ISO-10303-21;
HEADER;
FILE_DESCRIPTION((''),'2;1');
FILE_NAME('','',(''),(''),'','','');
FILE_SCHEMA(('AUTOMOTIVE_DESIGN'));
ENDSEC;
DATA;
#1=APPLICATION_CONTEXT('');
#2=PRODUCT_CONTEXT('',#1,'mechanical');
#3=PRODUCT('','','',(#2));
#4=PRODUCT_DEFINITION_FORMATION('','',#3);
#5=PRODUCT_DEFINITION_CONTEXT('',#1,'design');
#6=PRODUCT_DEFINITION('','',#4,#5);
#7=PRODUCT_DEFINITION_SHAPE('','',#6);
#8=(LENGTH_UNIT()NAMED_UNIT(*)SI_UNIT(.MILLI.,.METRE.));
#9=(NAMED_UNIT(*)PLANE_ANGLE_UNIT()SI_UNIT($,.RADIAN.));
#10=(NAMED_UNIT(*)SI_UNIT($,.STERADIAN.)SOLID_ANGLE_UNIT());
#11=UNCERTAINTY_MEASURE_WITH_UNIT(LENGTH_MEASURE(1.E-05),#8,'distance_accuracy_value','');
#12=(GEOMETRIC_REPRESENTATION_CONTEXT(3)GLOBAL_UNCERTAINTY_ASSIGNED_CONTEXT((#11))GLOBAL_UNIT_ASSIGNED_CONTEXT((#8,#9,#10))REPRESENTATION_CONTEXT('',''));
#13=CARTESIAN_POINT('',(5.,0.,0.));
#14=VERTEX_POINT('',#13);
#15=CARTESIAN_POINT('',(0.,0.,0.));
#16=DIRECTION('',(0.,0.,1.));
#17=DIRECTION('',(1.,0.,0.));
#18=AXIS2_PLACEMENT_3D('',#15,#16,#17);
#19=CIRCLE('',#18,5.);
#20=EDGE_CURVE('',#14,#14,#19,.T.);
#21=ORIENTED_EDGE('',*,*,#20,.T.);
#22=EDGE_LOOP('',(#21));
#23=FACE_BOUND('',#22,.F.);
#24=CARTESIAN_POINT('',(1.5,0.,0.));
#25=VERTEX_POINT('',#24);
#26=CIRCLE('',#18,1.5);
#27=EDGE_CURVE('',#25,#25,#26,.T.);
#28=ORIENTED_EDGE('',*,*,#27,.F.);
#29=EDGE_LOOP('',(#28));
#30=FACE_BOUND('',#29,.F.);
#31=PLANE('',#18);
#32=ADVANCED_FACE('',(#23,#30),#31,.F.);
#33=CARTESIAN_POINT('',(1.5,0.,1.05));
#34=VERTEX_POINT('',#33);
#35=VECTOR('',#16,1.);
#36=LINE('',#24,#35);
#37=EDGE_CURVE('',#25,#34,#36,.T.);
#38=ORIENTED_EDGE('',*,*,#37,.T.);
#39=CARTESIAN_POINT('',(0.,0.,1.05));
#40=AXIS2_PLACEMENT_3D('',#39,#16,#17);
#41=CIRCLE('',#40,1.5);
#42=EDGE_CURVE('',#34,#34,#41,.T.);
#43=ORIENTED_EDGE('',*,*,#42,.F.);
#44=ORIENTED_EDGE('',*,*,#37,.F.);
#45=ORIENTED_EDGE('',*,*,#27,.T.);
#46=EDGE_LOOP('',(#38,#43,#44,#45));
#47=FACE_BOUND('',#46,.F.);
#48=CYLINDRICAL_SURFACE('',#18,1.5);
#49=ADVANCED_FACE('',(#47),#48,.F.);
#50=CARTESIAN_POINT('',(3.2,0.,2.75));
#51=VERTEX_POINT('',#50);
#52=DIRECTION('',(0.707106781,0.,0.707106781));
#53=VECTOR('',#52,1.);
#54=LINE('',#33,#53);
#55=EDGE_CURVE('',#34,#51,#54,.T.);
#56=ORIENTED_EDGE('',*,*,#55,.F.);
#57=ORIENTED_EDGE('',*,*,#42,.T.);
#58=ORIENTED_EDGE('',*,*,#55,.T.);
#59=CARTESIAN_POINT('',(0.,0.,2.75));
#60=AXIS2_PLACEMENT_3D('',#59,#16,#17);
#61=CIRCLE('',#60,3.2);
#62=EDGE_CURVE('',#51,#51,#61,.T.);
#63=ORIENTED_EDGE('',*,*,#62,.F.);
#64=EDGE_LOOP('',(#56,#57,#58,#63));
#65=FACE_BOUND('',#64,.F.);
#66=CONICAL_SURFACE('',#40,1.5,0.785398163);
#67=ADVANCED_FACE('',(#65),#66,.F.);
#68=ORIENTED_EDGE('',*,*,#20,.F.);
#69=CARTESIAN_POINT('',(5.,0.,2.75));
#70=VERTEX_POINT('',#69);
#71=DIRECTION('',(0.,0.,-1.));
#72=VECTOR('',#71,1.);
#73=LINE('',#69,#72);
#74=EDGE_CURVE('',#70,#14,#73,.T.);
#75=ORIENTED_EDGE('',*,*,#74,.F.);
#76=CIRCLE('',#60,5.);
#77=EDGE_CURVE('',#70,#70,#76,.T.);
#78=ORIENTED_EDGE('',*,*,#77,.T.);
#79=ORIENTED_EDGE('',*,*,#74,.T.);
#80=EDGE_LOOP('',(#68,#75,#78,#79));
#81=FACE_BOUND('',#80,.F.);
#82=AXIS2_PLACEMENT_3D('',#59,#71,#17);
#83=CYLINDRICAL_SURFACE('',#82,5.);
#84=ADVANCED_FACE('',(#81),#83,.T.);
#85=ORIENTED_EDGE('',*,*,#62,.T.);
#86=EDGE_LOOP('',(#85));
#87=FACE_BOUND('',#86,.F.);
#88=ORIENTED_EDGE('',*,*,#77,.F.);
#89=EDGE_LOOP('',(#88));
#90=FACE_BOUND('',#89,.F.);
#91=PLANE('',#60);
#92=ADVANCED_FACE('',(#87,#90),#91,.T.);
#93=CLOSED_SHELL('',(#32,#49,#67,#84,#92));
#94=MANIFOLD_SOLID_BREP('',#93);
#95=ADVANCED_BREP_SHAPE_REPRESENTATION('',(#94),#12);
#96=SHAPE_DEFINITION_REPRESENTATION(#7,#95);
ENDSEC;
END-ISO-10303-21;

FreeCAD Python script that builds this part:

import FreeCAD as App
import Part
import Sketcher
from FreeCAD import Vector
Q = App.Units.Quantity

doc = App.newDocument("Part")
params = doc.addObject("Spreadsheet::Sheet", "Params")
for row, (alias, value) in enumerate([
    ("sketch1_width", "1.8 mm"),
    ("sketch1_width2", "3.5 mm"),
    ("sketch1_height", "1.05 mm"),
    ("revolution_angle", "360 deg"),
], start=1):
    params.set(f"A{row}", alias)
    params.set(f"B{row}", "=" + value)
    params.setAlias(f"B{row}", alias)

body = doc.addObject("PartDesign::Body", "Body")

# Sketch on XZ plane
sketch1 = body.newObject("Sketcher::SketchObject", "Sketch")
sketch1.AttachmentSupport = (doc.getObject("XZ_Plane"), [""])
sketch1.MapMode = "FlatFace"
sketch1.addGeometry(Part.LineSegment(Vector(5, 2.8, 0), Vector(3.2, 2.8, 0)), False)
sketch1.addGeometry(Part.LineSegment(Vector(3.2, 2.8, 0), Vector(1.5, 1.1, 0)), False)
sketch1.addGeometry(Part.LineSegment(Vector(1.5, 1.1, 0), Vector(1.5, 0, 0)), False)
sketch1.addGeometry(Part.LineSegment(Vector(1.5, 0, 0), Vector(5, 0, 0)), False)
sketch1.addGeometry(Part.LineSegment(Vector(5, 0, 0), Vector(5, 2.8, 0)), False)
sketch1.addConstraint(Sketcher.Constraint("Coincident", 0, 2, 1, 1))
sketch1.addConstraint(Sketcher.Constraint("Coincident", 1, 2, 2, 1))
sketch1.addConstraint(Sketcher.Constraint("Coincident", 2, 2, 3, 1))
sketch1.addConstraint(Sketcher.Constraint("Coincident", 3, 2, 4, 1))
sketch1.addConstraint(Sketcher.Constraint("Coincident", 4, 2, 0, 1))
sketch1.addConstraint(Sketcher.Constraint("Horizontal", 0))
sketch1.addConstraint(Sketcher.Constraint("Vertical", 2))
sketch1.addConstraint(Sketcher.Constraint("Horizontal", 3))
sketch1.addConstraint(Sketcher.Constraint("Vertical", 4))
sketch1.addConstraint(Sketcher.Constraint("PointOnObject", 2, 2, -1))
sketch1.addConstraint(Sketcher.Constraint("Angle", 1, Q("-135 deg")))
sketch1.addConstraint(Sketcher.Constraint("DistanceX", 0, 2, 0, 1, 1.8))
sketch1.addConstraint(Sketcher.Constraint("DistanceX", 3, 1, 3, 2, 3.5))
sketch1.addConstraint(Sketcher.Constraint("DistanceX", -1, 1, 3, 2, 5.0))
sketch1.addConstraint(Sketcher.Constraint("DistanceY", 2, 2, 2, 1, 1.05))
sketch1.setExpression("Constraints[11]", "Params.sketch1_width")
sketch1.setExpression("Constraints[12]", "Params.sketch1_width2")
sketch1.setExpression("Constraints[14]", "Params.sketch1_height")
revolution = body.newObject("PartDesign::Revolution", "Revolution")
revolution.Profile = sketch1
revolution.ReferenceAxis = (sketch1, ["V_Axis"])
revolution.setExpression("Angle", "Params.revolution_angle")

doc.recompute()
